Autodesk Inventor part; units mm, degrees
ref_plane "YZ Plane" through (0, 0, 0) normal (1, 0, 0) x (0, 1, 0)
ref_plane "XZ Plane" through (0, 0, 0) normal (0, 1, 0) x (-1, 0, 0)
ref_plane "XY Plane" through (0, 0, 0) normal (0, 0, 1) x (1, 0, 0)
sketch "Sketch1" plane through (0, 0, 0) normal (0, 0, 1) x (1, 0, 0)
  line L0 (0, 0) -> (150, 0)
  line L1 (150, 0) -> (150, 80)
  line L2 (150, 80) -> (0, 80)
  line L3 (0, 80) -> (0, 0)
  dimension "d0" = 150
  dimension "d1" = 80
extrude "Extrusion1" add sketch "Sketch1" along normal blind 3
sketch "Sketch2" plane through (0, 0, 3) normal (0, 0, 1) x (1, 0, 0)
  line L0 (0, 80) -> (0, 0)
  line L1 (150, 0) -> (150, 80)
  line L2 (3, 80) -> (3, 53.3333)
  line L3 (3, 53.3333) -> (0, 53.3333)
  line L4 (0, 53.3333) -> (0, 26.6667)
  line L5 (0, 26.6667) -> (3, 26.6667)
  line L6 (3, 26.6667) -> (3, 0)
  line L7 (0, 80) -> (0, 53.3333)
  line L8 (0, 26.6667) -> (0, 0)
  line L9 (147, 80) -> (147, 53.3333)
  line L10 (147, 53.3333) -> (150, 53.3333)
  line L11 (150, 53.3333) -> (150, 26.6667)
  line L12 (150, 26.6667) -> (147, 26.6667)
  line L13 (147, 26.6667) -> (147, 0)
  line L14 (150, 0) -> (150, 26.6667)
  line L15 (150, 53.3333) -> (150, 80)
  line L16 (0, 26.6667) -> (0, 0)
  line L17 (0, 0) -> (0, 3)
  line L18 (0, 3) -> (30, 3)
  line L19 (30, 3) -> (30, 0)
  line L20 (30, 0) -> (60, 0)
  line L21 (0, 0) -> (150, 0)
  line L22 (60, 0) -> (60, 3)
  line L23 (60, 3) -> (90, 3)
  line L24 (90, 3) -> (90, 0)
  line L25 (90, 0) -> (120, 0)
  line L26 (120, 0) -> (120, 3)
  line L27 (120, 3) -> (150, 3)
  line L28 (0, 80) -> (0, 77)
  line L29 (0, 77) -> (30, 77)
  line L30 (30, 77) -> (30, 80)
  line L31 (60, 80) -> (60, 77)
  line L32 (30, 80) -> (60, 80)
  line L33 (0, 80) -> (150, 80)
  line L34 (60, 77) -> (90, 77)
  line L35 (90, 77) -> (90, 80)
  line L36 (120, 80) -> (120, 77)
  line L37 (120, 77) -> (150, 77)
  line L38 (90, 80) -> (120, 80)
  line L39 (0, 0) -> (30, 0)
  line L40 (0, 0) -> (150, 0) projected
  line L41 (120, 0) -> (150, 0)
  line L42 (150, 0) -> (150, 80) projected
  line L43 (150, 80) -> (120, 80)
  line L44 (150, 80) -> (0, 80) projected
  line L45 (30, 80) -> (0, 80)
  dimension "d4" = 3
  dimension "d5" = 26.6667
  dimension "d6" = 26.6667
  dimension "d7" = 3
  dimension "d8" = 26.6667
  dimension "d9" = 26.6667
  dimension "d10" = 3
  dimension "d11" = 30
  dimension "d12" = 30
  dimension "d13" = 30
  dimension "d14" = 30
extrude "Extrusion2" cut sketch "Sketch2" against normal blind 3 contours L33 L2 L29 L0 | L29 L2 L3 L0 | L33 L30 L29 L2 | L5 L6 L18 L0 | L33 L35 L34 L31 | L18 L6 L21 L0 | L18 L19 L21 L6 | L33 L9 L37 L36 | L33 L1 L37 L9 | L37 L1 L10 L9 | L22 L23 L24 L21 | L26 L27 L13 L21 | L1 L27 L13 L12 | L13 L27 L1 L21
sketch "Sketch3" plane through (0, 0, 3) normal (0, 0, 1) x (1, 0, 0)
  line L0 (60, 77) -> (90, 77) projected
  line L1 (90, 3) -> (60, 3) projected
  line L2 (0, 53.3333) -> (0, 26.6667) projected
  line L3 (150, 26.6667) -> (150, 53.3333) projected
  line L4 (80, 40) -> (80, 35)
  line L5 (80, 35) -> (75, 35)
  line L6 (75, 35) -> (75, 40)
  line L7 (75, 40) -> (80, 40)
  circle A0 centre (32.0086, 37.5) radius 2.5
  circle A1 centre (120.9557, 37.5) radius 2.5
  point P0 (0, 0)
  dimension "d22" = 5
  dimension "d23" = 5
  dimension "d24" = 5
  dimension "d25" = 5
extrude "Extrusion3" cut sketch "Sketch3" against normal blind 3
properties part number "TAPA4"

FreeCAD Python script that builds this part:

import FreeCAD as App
import Part
import Sketcher

V = App.Vector
Q = App.Units.Quantity


def add_polygon(sketch, points):
    """Adds a closed chain of lines whose ends are joined by coincident constraints."""
    first, n = sketch.GeometryCount, len(points)
    for a, b in zip(points, points[1:] + points[:1]):
        sketch.addGeometry(Part.LineSegment(App.Vector(*a, 0), App.Vector(*b, 0)), False)
    for i in range(n):
        sketch.addConstraint(Sketcher.Constraint("Coincident", first + i, 2, first + (i + 1) % n, 1))

doc = App.newDocument("Part")
params = doc.addObject("Spreadsheet::Sheet", "Params")
for row, (alias, value) in enumerate([
    ("sketch1_width", "150 mm"),
    ("sketch1_height", "80 mm"),
    ("pad1_length", "3 mm"),
    ("sketch2_width", "3 mm"),
    ("sketch2_width2", "30 mm"),
    ("pocket1_length", "3 mm"),
    ("sketch3_diameter", "5 mm"),
    ("sketch3_width", "5 mm"),
    ("pocket2_length", "3 mm"),
], start=1):
    params.set(f"A{row}", alias)
    params.set(f"B{row}", "=" + value)
    params.setAlias(f"B{row}", alias)

body = doc.addObject("PartDesign::Body", "Body")

# Sketch on XY plane
sketch1 = doc.addObject("Sketcher::SketchObject", "Sketch")
body.addObject(sketch1)
sketch1.AttachmentSupport = (doc.XY_Plane, [""])
sketch1.MapMode = "FlatFace"
add_polygon(sketch1, [(0, 80), (0, 0), (150, 0), (150, 80)])  # lines 0-3
sketch1.addConstraint([
    Sketcher.Constraint("Vertical", 0),
    Sketcher.Constraint("Horizontal", 1),
    Sketcher.Constraint("Vertical", 2),
    Sketcher.Constraint("Horizontal", 3),
    Sketcher.Constraint("Coincident", 0, 2, -1, 1),
    Sketcher.Constraint("DistanceX", 1, 1, 1, 2, Q("150 mm")),
    Sketcher.Constraint("DistanceY", 0, 2, 0, 1, Q("80 mm")),
])
sketch1.setExpression("Constraints[9]", "Params.sketch1_width")
sketch1.setExpression("Constraints[10]", "Params.sketch1_height")
pad1 = doc.addObject("PartDesign::Pad", "Pad")
body.addObject(pad1)
pad1.Profile = sketch1
pad1.setExpression("Length", "Params.pad1_length")

# Sketch on XY plane
sketch2 = doc.addObject("Sketcher::SketchObject", "Sketch001")
body.addObject(sketch2)
sketch2.AttachmentSupport = (doc.XY_Plane, [""])
sketch2.MapMode = "FlatFace"
sketch2.AttachmentOffset = App.Placement(V(0, 0, 3), App.Rotation())
add_polygon(sketch2, [(0, 80), (0, 53.3), (3, 53.3), (3, 77), (30, 77), (30, 80)])  # lines 0-5
add_polygon(sketch2, [(3, 26.7), (0, 26.7), (0, 0), (30, 0), (30, 3), (3, 3)])  # lines 6-11
add_polygon(sketch2, [(90, 80), (60, 80), (60, 77), (90, 77)])  # lines 12-15
add_polygon(sketch2, [(120, 80), (120, 77), (147, 77), (147, 53.3), (150, 53.3), (150, 80)])  # lines 16-21
add_polygon(sketch2, [(60, 3), (60, 0), (90, 0), (90, 3)])  # lines 22-25
add_polygon(sketch2, [(120, 3), (120, 0), (150, 0), (150, 26.7), (147, 26.7), (147, 3)])  # lines 26-31
sketch2.addConstraint([
    Sketcher.Constraint("Vertical", 0),
    Sketcher.Constraint("Horizontal", 1),
    Sketcher.Constraint("Vertical", 2),
    Sketcher.Constraint("Horizontal", 3),
    Sketcher.Constraint("Vertical", 4),
    Sketcher.Constraint("Horizontal", 5),
    Sketcher.Constraint("Horizontal", 6),
    Sketcher.Constraint("Vertical", 7),
    Sketcher.Constraint("Horizontal", 8),
    Sketcher.Constraint("Vertical", 9),
    Sketcher.Constraint("Horizontal", 10),
    Sketcher.Constraint("Vertical", 11),
    Sketcher.Constraint("Horizontal", 12),
    Sketcher.Constraint("Vertical", 13),
    Sketcher.Constraint("Horizontal", 14),
    Sketcher.Constraint("Vertical", 15),
    Sketcher.Constraint("Vertical", 16),
    Sketcher.Constraint("Horizontal", 17),
    Sketcher.Constraint("Vertical", 18),
    Sketcher.Constraint("Horizontal", 19),
    Sketcher.Constraint("Vertical", 20),
    Sketcher.Constraint("Horizontal", 21),
    Sketcher.Constraint("Vertical", 22),
    Sketcher.Constraint("Horizontal", 23),
    Sketcher.Constraint("Vertical", 24),
    Sketcher.Constraint("Horizontal", 25),
    Sketcher.Constraint("Vertical", 26),
    Sketcher.Constraint("Horizontal", 27),
    Sketcher.Constraint("Vertical", 28),
    Sketcher.Constraint("Horizontal", 29),
    Sketcher.Constraint("Vertical", 30),
    Sketcher.Constraint("Horizontal", 31),
    Sketcher.Constraint("Coincident", 7, 2, -1, 1),
    Sketcher.Constraint("PointOnObject", 0, 2, -2),
    Sketcher.Constraint("PointOnObject", 22, 2, -1),
    Sketcher.Constraint("PointOnObject", 26, 2, -1),
    Sketcher.Constraint("Horizontal", 5, 2, 12, 2),
    Sketcher.Constraint("Horizontal", 3, 2, 13, 2),
    Sketcher.Constraint("Horizontal", 14, 2, 16, 2),
    Sketcher.Constraint("Horizontal", 1, 2, 18, 2),
    Sketcher.Constraint("Horizontal", 15, 2, 20, 2),
    Sketcher.Constraint("Horizontal", 10, 2, 24, 2),
    Sketcher.Constraint("Horizontal", 11, 2, 28, 2),
    Sketcher.Constraint("Horizontal", 25, 2, 30, 2),
    Sketcher.Constraint("Vertical", 4, 2, 8, 2),
    Sketcher.Constraint("Vertical", 2, 2, 10, 2),
    Sketcher.Constraint("Vertical", 13, 2, 22, 2),
    Sketcher.Constraint("Vertical", 15, 2, 23, 2),
    Sketcher.Constraint("Vertical", 21, 2, 26, 2),
    Sketcher.Constraint("Vertical", 20, 2, 27, 2),
    Sketcher.Constraint("Vertical", 18, 2, 29, 2),
    Sketcher.Constraint("Equal", 8, 12),
    Sketcher.Constraint("Equal", 10, 17),
    Sketcher.Constraint("Equal", 6, 19),
    Sketcher.Constraint("Equal", 29, 4),
    Sketcher.Constraint("Equal", 0, 7),
    Sketcher.Constraint("Equal", 4, 9),
    Sketcher.Constraint("DistanceX", 1, 1, 1, 2, Q("3 mm")),
    Sketcher.Constraint("DistanceX", 5, 2, 5, 1, Q("30 mm")),
    Sketcher.Constraint("DistanceX", 4, 2, 12, 2, Q("30 mm")),
    Sketcher.Constraint("DistanceX", 14, 2, 16, 2, Q("30 mm")),
    Sketcher.Constraint("DistanceY", 0, 2, 0, 1, Q("26.6667 mm")),
    Sketcher.Constraint("DistanceY", -1, 1, 2, 2, Q("77 mm")),
])
sketch2.setExpression("Constraints[89]", "Params.sketch2_width")
sketch2.setExpression("Constraints[90]", "Params.sketch2_width2")
pocket1 = doc.addObject("PartDesign::Pocket", "Pocket")
body.addObject(pocket1)
pocket1.Profile = sketch2
pocket1.setExpression("Length", "Params.pocket1_length")

# Sketch on XY plane
sketch3 = doc.addObject("Sketcher::SketchObject", "Sketch002")
body.addObject(sketch3)
sketch3.AttachmentSupport = (doc.XY_Plane, [""])
sketch3.MapMode = "FlatFace"
sketch3.AttachmentOffset = App.Placement(V(0, 0, 3), App.Rotation())
add_polygon(sketch3, [(80, 35), (80, 40), (75, 40), (75, 35)])  # lines 0-3
sketch3.addGeometry(Part.Circle(V(32, 37.5, 0), V(0, 0, 1), 2.5), False)  # 4
sketch3.addGeometry(Part.Circle(V(121, 37.5, 0), V(0, 0, 1), 2.5), False)  # 5
sketch3.addConstraint([
    Sketcher.Constraint("Vertical", 0),
    Sketcher.Constraint("Horizontal", 1),
    Sketcher.Constraint("Vertical", 2),
    Sketcher.Constraint("Horizontal", 3),
    Sketcher.Constraint("Equal", 4, 5),
    Sketcher.Constraint("Horizontal", 4, 3, 5, 3),
    Sketcher.Constraint("Equal", 3, 0),
    Sketcher.Constraint("Diameter", 4, Q("5 mm")),
    Sketcher.Constraint("DistanceX", 1, 2, 1, 1, Q("5 mm")),
    Sketcher.Constraint("DistanceX", -1, 1, 0, 2, Q("80 mm")),
    Sketcher.Constraint("DistanceY", -1, 1, 0, 2, Q("40 mm")),
    Sketcher.Constraint("DistanceY", -1, 1, 4, 3, Q("37.5 mm")),
    Sketcher.Constraint("DistanceX", 4, 3, 5, 3, Q("88.947 mm")),
    Sketcher.Constraint("DistanceX", -1, 1, 4, 3, Q("32.0086 mm")),
])
sketch3.setExpression("Constraints[11]", "Params.sketch3_diameter")
sketch3.setExpression("Constraints[12]", "Params.sketch3_width")
pocket2 = doc.addObject("PartDesign::Pocket", "Pocket001")
body.addObject(pocket2)
pocket2.Profile = sketch3
pocket2.setExpression("Length", "Params.pocket2_length")

doc.recompute()
